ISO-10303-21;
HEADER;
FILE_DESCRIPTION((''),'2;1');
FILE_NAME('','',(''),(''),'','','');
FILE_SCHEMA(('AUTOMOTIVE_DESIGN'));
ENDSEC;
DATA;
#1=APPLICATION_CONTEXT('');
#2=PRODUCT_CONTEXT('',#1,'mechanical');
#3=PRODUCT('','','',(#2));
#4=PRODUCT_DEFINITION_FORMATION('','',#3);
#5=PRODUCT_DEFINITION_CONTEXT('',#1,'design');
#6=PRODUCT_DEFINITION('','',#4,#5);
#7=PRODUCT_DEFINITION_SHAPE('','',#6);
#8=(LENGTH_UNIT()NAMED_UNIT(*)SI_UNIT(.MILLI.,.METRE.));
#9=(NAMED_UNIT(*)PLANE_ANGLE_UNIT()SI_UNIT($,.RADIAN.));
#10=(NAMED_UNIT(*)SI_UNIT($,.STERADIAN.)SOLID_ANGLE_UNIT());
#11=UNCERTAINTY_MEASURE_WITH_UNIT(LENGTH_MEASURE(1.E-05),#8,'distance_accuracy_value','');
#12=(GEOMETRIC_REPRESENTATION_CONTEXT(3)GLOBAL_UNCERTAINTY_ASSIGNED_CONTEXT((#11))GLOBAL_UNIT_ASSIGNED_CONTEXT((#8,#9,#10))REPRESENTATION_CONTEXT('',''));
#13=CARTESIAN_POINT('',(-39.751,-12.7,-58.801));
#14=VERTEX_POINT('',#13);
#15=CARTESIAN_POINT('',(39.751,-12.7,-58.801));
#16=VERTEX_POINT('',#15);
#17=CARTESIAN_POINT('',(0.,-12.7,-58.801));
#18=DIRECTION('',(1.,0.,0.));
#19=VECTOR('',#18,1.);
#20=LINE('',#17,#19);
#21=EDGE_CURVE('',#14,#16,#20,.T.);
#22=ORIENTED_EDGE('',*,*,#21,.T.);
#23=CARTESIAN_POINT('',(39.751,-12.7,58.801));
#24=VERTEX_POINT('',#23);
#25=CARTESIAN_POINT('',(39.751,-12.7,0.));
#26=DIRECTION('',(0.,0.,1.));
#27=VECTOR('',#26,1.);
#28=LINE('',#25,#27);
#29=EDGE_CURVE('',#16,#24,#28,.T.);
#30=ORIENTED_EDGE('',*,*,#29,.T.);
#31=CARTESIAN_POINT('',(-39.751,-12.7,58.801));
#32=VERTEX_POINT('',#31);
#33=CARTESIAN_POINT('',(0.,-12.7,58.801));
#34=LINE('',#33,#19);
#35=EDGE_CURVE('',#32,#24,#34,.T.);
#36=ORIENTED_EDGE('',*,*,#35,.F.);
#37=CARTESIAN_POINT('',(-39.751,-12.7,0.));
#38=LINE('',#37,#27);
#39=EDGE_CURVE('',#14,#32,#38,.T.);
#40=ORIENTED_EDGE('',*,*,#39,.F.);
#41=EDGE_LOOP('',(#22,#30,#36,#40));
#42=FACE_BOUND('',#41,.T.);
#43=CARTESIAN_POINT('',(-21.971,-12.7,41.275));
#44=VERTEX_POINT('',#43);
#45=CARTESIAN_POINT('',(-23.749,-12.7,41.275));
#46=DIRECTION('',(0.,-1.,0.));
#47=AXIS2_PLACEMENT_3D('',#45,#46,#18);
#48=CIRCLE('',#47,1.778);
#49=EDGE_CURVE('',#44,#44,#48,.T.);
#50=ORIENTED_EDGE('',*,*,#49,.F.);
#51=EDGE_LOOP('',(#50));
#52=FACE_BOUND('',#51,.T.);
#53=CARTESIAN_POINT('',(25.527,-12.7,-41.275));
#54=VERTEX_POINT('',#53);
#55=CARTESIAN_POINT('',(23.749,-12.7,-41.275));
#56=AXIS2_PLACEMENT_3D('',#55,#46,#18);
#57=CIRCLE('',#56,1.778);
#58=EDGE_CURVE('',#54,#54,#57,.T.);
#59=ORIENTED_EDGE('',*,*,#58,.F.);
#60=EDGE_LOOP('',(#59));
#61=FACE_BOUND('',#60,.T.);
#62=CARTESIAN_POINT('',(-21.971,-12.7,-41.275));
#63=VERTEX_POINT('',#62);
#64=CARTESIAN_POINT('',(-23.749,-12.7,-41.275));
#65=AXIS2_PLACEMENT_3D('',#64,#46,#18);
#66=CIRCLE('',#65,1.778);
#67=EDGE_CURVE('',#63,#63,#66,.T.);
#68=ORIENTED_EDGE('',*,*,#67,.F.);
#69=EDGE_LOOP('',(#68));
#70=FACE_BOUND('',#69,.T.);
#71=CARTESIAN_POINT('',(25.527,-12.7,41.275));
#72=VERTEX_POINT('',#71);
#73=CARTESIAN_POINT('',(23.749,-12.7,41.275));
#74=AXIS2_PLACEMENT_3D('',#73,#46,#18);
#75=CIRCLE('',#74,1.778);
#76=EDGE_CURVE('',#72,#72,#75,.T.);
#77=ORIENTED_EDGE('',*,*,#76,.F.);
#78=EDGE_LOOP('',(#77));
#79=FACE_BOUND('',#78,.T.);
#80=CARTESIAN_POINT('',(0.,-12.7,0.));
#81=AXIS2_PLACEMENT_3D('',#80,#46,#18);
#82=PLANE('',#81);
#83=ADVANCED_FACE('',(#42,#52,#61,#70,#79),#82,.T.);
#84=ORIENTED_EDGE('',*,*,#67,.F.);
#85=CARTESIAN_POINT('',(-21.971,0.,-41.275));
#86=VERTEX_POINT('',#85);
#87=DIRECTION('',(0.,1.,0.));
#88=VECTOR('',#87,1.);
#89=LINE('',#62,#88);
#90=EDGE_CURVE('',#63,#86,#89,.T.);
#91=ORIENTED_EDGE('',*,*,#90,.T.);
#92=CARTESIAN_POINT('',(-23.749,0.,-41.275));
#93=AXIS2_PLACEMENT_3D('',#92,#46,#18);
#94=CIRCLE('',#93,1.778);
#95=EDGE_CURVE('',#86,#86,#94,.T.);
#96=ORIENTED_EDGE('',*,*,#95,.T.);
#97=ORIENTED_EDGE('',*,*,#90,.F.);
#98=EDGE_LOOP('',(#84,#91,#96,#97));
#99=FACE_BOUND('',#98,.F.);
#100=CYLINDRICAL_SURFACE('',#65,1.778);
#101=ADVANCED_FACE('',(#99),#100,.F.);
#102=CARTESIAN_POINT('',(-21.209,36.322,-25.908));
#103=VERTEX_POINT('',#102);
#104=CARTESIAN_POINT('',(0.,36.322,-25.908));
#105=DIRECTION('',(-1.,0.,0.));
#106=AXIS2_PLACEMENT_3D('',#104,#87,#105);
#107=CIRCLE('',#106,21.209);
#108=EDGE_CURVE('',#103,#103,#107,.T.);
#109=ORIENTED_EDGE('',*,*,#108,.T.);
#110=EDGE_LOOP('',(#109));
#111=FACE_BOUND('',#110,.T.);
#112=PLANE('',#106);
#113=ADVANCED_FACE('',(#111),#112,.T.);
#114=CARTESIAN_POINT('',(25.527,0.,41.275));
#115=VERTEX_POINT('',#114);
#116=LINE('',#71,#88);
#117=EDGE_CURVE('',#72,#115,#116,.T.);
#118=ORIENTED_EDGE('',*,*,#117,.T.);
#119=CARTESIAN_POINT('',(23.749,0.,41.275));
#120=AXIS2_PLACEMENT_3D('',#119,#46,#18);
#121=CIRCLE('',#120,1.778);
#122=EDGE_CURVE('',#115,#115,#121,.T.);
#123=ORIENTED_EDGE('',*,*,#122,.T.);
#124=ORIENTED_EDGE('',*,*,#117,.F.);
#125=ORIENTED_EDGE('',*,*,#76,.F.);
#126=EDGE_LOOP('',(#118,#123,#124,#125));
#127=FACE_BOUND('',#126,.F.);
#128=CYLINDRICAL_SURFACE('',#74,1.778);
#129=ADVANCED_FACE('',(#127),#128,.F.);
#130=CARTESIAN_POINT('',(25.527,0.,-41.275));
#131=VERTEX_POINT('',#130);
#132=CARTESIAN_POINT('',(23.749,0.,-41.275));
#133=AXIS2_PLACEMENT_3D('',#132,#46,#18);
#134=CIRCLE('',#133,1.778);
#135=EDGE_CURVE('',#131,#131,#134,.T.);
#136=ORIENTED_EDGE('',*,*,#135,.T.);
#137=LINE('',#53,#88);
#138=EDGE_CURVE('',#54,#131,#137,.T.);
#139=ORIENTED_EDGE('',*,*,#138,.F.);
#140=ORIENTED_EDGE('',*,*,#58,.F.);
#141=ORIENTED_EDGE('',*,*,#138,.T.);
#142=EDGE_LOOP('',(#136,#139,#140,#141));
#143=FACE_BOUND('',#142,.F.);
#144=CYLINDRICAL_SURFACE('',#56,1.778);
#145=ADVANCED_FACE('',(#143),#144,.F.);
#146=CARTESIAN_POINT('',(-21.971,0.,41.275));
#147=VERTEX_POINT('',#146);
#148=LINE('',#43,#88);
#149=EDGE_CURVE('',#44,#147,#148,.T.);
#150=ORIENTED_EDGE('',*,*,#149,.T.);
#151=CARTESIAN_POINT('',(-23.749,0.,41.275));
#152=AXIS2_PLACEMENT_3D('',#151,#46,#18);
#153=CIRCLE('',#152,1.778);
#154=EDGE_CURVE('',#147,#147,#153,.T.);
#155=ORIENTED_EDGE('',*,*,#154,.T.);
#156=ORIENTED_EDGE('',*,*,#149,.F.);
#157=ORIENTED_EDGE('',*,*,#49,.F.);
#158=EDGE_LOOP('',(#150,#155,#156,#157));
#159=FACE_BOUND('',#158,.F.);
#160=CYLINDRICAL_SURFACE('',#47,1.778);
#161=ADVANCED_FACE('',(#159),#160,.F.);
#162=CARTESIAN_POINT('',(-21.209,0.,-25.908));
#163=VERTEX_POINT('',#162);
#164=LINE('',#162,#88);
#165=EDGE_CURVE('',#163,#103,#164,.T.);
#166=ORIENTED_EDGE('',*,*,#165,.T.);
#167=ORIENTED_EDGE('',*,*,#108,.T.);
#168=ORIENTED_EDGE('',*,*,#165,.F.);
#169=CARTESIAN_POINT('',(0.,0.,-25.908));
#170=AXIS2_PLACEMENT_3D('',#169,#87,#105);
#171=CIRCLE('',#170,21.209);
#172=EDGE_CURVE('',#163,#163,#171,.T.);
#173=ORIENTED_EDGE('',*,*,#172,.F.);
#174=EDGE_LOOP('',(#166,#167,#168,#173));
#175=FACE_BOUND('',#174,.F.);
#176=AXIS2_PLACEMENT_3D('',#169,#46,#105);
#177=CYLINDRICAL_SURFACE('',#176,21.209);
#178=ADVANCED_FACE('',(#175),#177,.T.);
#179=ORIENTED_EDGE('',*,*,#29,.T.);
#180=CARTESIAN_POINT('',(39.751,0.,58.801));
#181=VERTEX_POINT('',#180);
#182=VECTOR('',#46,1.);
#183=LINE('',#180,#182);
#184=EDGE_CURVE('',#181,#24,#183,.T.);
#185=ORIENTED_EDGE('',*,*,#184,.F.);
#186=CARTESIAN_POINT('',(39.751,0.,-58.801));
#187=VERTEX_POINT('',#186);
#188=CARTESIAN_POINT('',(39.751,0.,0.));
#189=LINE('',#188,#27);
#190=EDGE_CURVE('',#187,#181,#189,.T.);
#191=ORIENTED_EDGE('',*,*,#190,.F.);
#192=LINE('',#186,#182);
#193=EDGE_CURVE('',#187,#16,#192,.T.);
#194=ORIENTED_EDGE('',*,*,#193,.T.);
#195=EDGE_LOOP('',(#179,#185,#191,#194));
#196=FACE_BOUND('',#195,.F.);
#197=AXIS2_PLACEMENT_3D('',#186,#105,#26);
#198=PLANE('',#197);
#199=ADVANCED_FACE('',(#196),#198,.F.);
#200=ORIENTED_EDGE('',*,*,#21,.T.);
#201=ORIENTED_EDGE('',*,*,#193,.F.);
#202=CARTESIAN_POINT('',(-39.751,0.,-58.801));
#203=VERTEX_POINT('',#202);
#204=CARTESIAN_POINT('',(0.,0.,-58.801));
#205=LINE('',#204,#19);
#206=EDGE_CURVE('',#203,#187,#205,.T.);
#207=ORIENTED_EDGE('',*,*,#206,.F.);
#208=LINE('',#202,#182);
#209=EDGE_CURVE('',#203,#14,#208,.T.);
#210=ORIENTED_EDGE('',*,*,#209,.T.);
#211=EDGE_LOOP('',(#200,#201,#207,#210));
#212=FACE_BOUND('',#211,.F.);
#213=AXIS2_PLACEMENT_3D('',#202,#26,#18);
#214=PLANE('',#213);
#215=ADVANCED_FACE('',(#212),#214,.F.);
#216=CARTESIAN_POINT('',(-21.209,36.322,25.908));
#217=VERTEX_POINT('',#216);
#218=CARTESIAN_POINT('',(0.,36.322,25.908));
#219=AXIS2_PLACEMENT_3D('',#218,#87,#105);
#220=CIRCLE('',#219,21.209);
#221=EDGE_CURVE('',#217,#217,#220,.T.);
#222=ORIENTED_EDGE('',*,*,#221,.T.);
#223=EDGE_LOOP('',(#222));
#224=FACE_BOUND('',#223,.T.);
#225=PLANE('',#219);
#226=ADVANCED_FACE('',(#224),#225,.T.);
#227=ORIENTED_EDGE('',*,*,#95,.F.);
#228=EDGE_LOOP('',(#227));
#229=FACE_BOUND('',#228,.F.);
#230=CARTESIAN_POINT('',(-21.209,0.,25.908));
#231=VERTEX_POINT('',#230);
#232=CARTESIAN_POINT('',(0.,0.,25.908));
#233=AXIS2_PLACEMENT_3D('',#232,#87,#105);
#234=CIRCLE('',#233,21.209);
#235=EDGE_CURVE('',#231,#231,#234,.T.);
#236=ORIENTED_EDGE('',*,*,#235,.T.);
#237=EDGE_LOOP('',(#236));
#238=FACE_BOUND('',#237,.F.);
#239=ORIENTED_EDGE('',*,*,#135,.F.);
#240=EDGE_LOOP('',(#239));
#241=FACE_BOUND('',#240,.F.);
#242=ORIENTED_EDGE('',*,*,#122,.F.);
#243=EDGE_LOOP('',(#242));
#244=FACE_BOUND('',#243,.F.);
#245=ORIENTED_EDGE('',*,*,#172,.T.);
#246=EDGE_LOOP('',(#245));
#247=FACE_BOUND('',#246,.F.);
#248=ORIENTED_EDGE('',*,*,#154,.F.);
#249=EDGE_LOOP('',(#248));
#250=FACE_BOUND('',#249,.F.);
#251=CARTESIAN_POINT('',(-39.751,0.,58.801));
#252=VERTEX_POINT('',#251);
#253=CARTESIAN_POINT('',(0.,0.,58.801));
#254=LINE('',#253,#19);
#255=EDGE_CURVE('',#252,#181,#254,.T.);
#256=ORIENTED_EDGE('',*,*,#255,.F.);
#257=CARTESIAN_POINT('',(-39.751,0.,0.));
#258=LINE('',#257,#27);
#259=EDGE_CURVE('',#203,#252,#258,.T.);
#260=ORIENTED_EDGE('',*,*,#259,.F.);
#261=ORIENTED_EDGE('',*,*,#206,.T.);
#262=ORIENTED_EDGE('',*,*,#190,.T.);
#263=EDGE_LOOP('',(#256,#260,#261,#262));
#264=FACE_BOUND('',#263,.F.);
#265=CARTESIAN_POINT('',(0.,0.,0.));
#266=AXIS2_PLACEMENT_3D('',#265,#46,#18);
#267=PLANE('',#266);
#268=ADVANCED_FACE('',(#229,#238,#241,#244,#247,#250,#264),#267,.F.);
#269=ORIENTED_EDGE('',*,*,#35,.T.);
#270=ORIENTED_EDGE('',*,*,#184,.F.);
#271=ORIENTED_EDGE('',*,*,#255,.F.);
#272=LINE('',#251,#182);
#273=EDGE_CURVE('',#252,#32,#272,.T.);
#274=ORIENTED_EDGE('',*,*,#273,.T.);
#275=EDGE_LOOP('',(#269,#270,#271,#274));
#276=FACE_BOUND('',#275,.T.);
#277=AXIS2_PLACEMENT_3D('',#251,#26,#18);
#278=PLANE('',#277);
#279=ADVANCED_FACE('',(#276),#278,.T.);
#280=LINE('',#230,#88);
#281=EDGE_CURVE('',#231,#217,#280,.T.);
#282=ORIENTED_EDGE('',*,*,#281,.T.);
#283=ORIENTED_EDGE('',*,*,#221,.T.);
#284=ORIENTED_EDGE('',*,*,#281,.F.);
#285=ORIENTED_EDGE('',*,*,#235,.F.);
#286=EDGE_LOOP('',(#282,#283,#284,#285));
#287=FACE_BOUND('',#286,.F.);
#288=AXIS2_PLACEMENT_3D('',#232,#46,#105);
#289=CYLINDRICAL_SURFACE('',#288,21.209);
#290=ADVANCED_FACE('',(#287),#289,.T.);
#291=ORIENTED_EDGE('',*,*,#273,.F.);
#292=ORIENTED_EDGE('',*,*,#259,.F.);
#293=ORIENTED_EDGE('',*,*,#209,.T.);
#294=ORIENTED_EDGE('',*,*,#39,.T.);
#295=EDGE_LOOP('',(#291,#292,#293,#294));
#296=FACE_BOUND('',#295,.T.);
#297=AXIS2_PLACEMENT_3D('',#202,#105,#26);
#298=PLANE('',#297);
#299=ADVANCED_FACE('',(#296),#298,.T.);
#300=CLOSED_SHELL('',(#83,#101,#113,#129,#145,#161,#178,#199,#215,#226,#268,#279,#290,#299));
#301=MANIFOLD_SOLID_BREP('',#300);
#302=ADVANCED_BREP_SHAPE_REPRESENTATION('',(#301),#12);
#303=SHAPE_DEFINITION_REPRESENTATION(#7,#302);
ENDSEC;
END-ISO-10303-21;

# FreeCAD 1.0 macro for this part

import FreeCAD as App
import Part
import Sketcher

V = App.Vector
Q = App.Units.Quantity

doc = App.newDocument("Part")
body = doc.addObject("PartDesign::Body", "Body")

# Sketch on XZ plane
sketch1 = body.newObject("Sketcher::SketchObject", "Sketch")
sketch1.AttachmentSupport = (doc.getObject("XZ_Plane"), [""])
sketch1.MapMode = "FlatFace"
sketch1.addGeometry([
    Part.LineSegment(V(-40, 59, 0), V(-40, -59, 0)),
    Part.LineSegment(V(-40, -59, 0), V(40, -59, 0)),
    Part.LineSegment(V(40, -59, 0), V(40, 59, 0)),
    Part.LineSegment(V(40, 59, 0), V(-40, 59, 0)),
], False)
sketch1.addConstraint([
    Sketcher.Constraint("Coincident", 0, 2, 1, 1),
    Sketcher.Constraint("Coincident", 1, 2, 2, 1),
    Sketcher.Constraint("Coincident", 2, 2, 3, 1),
    Sketcher.Constraint("Coincident", 3, 2, 0, 1),
    Sketcher.Constraint("Vertical", 0),
    Sketcher.Constraint("Horizontal", 1),
    Sketcher.Constraint("Vertical", 2),
    Sketcher.Constraint("Horizontal", 3),
    Sketcher.Constraint("Symmetric", 0, 2, 2, 2, -1, 1),
    Sketcher.Constraint("DistanceX", 1, 1, 1, 2, Q("3.13 in")),
    Sketcher.Constraint("DistanceY", 0, 2, 0, 1, Q("4.63 in")),
])
pad1 = body.newObject("PartDesign::Pad", "Pad")
pad1.Profile = sketch1
pad1.Length = Q("0.5 in")

# Sketch on XZ plane
sketch2 = body.newObject("Sketcher::SketchObject", "Sketch001")
sketch2.AttachmentSupport = (doc.getObject("XZ_Plane"), [""])
sketch2.MapMode = "FlatFace"
sketch2.AttachmentOffset = App.Placement(V(0, 0, 0.5 * 25.4), App.Rotation())
sketch2.addGeometry([
    Part.Circle(V(-23.7, 41.3, 0), V(0, 0, 1), 1.8),
    Part.Circle(V(23.7, 41.3, 0), V(0, 0, 1), 1.8),
    Part.Circle(V(-23.7, -41.3, 0), V(0, 0, 1), 1.8),
    Part.Circle(V(23.7, -41.3, 0), V(0, 0, 1), 1.8),
], False)
sketch2.addConstraint([
    Sketcher.Constraint("Equal", 0, 1),
    Sketcher.Constraint("Equal", 1, 2),
    Sketcher.Constraint("Equal", 2, 3),
    Sketcher.Constraint("Symmetric", 1, 3, 2, 3, -1, 1),
    Sketcher.Constraint("Symmetric", 0, 3, 3, 3, -1, 1),
    Sketcher.Constraint("Symmetric", 0, 3, 1, 3, -2),
    Sketcher.Constraint("Diameter", 0, Q("0.14 in")),
    Sketcher.Constraint("DistanceX", 0, 3, 1, 3, Q("1.87 in")),
    Sketcher.Constraint("DistanceY", 2, 3, 0, 3, Q("3.25 in")),
])
pocket1 = body.newObject("PartDesign::Pocket", "Pocket")
pocket1.Profile = sketch2
pocket1.Type = "ThroughAll"

# Sketch on XZ plane
sketch3 = body.newObject("Sketcher::SketchObject", "Sketch002")
sketch3.AttachmentSupport = (doc.getObject("XZ_Plane"), [""])
sketch3.MapMode = "FlatFace"
sketch3.addGeometry([
    Part.Circle(V(0, 26, 0), V(0, 0, 1), 21),
    Part.Circle(V(0, -26, 0), V(0, 0, 1), 21),
], False)
sketch3.addConstraint([
    Sketcher.Constraint("Equal", 0, 1),
    Sketcher.Constraint("Symmetric", 0, 3, 1, 3, -1, 1),
    Sketcher.Constraint("PointOnObject", 0, 3, -2),
    Sketcher.Constraint("Diameter", 0, Q("1.67 in")),
    Sketcher.Constraint("DistanceY", -1, 1, 0, 3, Q("1.02 in")),
])
pad2 = body.newObject("PartDesign::Pad", "Pad001")
pad2.Profile = sketch3
pad2.Length = Q("1.43 in")
pad2.Reversed = True

doc.recompute()
